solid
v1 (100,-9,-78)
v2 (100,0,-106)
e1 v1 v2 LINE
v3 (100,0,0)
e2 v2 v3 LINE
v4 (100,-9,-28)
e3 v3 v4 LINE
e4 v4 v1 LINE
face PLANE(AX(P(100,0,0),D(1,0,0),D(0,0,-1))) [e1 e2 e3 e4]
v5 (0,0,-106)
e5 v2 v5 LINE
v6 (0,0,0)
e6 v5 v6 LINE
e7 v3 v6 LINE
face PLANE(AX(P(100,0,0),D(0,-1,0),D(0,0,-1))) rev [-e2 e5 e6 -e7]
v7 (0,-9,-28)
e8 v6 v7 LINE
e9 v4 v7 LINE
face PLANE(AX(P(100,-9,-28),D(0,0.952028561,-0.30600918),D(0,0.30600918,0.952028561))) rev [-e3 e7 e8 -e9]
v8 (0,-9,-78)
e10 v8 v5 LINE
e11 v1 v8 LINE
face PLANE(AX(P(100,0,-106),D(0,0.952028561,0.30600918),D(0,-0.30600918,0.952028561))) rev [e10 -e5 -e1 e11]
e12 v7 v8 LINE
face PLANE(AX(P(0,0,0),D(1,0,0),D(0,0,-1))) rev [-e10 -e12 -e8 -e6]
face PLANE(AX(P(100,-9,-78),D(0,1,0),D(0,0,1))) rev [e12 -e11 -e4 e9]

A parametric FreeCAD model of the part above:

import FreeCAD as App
import Part
import Sketcher
from FreeCAD import Vector

doc = App.newDocument("Part")
params = doc.addObject("Spreadsheet::Sheet", "Params")
for row, (alias, value) in enumerate([
    ("sketch1_height", "106 mm"),
    ("sketch1_height2", "50 mm"),
    ("pad1_length", "100 mm"),
], start=1):
    params.set(f"A{row}", alias)
    params.set(f"B{row}", "=" + value)
    params.setAlias(f"B{row}", alias)

body = doc.addObject("PartDesign::Body", "Body")

sketch1 = body.newObject("Sketcher::SketchObject", "Sketch")
sketch1.AttachmentSupport = (doc.getObject("YZ_Plane"), [""])
sketch1.MapMode = "FlatFace"
sketch1.addGeometry(Part.LineSegment(Vector(0, -106, 0), Vector(0, 0, 0)), False)
sketch1.addGeometry(Part.LineSegment(Vector(0, 0, 0), Vector(-9, -28, 0)), False)
sketch1.addGeometry(Part.LineSegment(Vector(-9, -28, 0), Vector(-9, -78, 0)), False)
sketch1.addGeometry(Part.LineSegment(Vector(-9, -78, 0), Vector(0, -106, 0)), False)
sketch1.addConstraint(Sketcher.Constraint("Coincident", 0, 2, 1, 1))
sketch1.addConstraint(Sketcher.Constraint("Coincident", 1, 2, 2, 1))
sketch1.addConstraint(Sketcher.Constraint("Coincident", 2, 2, 3, 1))
sketch1.addConstraint(Sketcher.Constraint("Coincident", 3, 2, 0, 1))
sketch1.addConstraint(Sketcher.Constraint("Vertical", 0))
sketch1.addConstraint(Sketcher.Constraint("Vertical", 2))
sketch1.addConstraint(Sketcher.Constraint("Coincident", 0, 2, -1, 1))
sketch1.addConstraint(Sketcher.Constraint("Equal", 1, 3))
sketch1.addConstraint(Sketcher.Constraint("DistanceY", 0, 1, 0, 2, 106.0))
sketch1.addConstraint(Sketcher.Constraint("DistanceY", 2, 2, 2, 1, 50.0))
sketch1.addConstraint(Sketcher.Constraint("DistanceX", 1, 2, -1, 1, 9.0))
sketch1.setExpression("Constraints[8]", "Params.sketch1_height")
sketch1.setExpression("Constraints[9]", "Params.sketch1_height2")
pad1 = body.newObject("PartDesign::Pad", "Pad")
pad1.Profile = sketch1
pad1.setExpression("Length", "Params.pad1_length")

doc.recompute()
